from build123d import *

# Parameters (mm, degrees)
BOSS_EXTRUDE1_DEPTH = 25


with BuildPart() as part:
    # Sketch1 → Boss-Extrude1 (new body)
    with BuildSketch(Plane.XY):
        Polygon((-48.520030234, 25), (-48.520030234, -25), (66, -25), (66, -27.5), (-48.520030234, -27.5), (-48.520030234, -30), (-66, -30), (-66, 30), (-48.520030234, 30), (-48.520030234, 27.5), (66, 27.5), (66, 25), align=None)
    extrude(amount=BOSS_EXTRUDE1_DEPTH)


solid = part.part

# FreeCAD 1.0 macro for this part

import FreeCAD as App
import Part
import Sketcher
from FreeCAD import Vector
Q = App.Units.Quantity

doc = App.newDocument("Part")
params = doc.addObject("Spreadsheet::Sheet", "Params")
for row, (alias, value) in enumerate([
    ("sketch1_height", "50 mm"),
    ("sketch1_height2", "60 mm"),
    ("pad1_length", "25 mm"),
], start=1):
    params.set(f"A{row}", alias)
    params.set(f"B{row}", "=" + value)
    params.setAlias(f"B{row}", alias)

body = doc.addObject("PartDesign::Body", "Body")

# Sketch on XY plane
sketch1 = body.newObject("Sketcher::SketchObject", "Sketch")
sketch1.AttachmentSupport = (doc.getObject("XY_Plane"), [""])
sketch1.MapMode = "FlatFace"
sketch1.addGeometry(Part.LineSegment(Vector(-48.5, -25, 0), Vector(-48.5, 25, 0)), False)
sketch1.addGeometry(Part.LineSegment(Vector(-48.5, 25, 0), Vector(66, 25, 0)), False)
sketch1.addGeometry(Part.LineSegment(Vector(66, 25, 0), Vector(66, 27.5, 0)), False)
sketch1.addGeometry(Part.LineSegment(Vector(66, 27.5, 0), Vector(-48.5, 27.5, 0)), False)
sketch1.addGeometry(Part.LineSegment(Vector(-48.5, 27.5, 0), Vector(-48.5, 30, 0)), False)
sketch1.addGeometry(Part.LineSegment(Vector(-48.5, 30, 0), Vector(-66, 30, 0)), False)
sketch1.addGeometry(Part.LineSegment(Vector(-66, 30, 0), Vector(-66, -30, 0)), False)
sketch1.addGeometry(Part.LineSegment(Vector(-66, -30, 0), Vector(-48.5, -30, 0)), False)
sketch1.addGeometry(Part.LineSegment(Vector(-48.5, -30, 0), Vector(-48.5, -27.5, 0)), False)
sketch1.addGeometry(Part.LineSegment(Vector(-48.5, -27.5, 0), Vector(66, -27.5, 0)), False)
sketch1.addGeometry(Part.LineSegment(Vector(66, -27.5, 0), Vector(66, -25, 0)), False)
sketch1.addGeometry(Part.LineSegment(Vector(66, -25, 0), Vector(-48.5, -25, 0)), False)
sketch1.addConstraint(Sketcher.Constraint("Coincident", 0, 2, 1, 1))
sketch1.addConstraint(Sketcher.Constraint("Coincident", 1, 2, 2, 1))
sketch1.addConstraint(Sketcher.Constraint("Coincident", 2, 2, 3, 1))
sketch1.addConstraint(Sketcher.Constraint("Coincident", 3, 2, 4, 1))
sketch1.addConstraint(Sketcher.Constraint("Coincident", 4, 2, 5, 1))
sketch1.addConstraint(Sketcher.Constraint("Coincident", 5, 2, 6, 1))
sketch1.addConstraint(Sketcher.Constraint("Coincident", 6, 2, 7, 1))
sketch1.addConstraint(Sketcher.Constraint("Coincident", 7, 2, 8, 1))
sketch1.addConstraint(Sketcher.Constraint("Coincident", 8, 2, 9, 1))
sketch1.addConstraint(Sketcher.Constraint("Coincident", 9, 2, 10, 1))
sketch1.addConstraint(Sketcher.Constraint("Coincident", 10, 2, 11, 1))
sketch1.addConstraint(Sketcher.Constraint("Coincident", 11, 2, 0, 1))
sketch1.addConstraint(Sketcher.Constraint("Vertical", 0))
sketch1.addConstraint(Sketcher.Constraint("Horizontal", 1))
sketch1.addConstraint(Sketcher.Constraint("Vertical", 2))
sketch1.addConstraint(Sketcher.Constraint("Horizontal", 3))
sketch1.addConstraint(Sketcher.Constraint("Vertical", 4))
sketch1.addConstraint(Sketcher.Constraint("Horizontal", 5))
sketch1.addConstraint(Sketcher.Constraint("Vertical", 6))
sketch1.addConstraint(Sketcher.Constraint("Horizontal", 7))
sketch1.addConstraint(Sketcher.Constraint("Vertical", 8))
sketch1.addConstraint(Sketcher.Constraint("Horizontal", 9))
sketch1.addConstraint(Sketcher.Constraint("Vertical", 10))
sketch1.addConstraint(Sketcher.Constraint("Horizontal", 11))
sketch1.addConstraint(Sketcher.Constraint("Symmetric", 4, 2, 7, 2, -1))
sketch1.addConstraint(Sketcher.Constraint("Symmetric", 2, 2, 9, 2, -1))
sketch1.addConstraint(Sketcher.Constraint("Vertical", 0, 2, 3, 2))
sketch1.addConstraint(Sketcher.Constraint("Equal", 2, 4))
sketch1.addConstraint(Sketcher.Constraint("Equal", 8, 10))
sketch1.addConstraint(Sketcher.Constraint("DistanceY", 0, 1, 0, 2, Q("50 mm")))
sketch1.addConstraint(Sketcher.Constraint("DistanceY", 6, 2, 6, 1, Q("60 mm")))
sketch1.addConstraint(Sketcher.Constraint("DistanceX", -1, 1, 1, 2, Q("66 mm")))
sketch1.addConstraint(Sketcher.Constraint("DistanceX", 5, 2, -1, 1, Q("66 mm")))
sketch1.addConstraint(Sketcher.Constraint("DistanceX", 1, 1, 1, 2, Q("114.52003 mm")))
sketch1.setExpression("Constraints[29]", "Params.sketch1_height")
sketch1.setExpression("Constraints[30]", "Params.sketch1_height2")
pad1 = body.newObject("PartDesign::Pad", "Pad")
pad1.Profile = sketch1
pad1.setExpression("Length", "Params.pad1_length")

doc.recompute()
